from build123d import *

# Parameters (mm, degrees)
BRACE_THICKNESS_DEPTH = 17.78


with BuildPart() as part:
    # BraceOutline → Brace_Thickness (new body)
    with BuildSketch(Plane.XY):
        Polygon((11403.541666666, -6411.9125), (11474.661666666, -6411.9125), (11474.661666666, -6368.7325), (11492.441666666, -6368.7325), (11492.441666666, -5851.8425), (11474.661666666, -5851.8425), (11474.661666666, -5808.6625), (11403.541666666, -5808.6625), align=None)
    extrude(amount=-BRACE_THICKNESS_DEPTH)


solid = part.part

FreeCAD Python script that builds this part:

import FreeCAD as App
import Part
import Sketcher
from FreeCAD import Vector
Q = App.Units.Quantity


def add_polygon(sketch, points):
    """Adds a closed chain of lines whose ends are joined by coincident constraints."""
    first, n = sketch.GeometryCount, len(points)
    for a, b in zip(points, points[1:] + points[:1]):
        sketch.addGeometry(Part.LineSegment(App.Vector(*a, 0), App.Vector(*b, 0)), False)
    for i in range(n):
        sketch.addConstraint(Sketcher.Constraint("Coincident", first + i, 2, first + (i + 1) % n, 1))

doc = App.newDocument("Part")
params = doc.addObject("Spreadsheet::Sheet", "Params")
for row, (alias, value) in enumerate([
    ("sketch1_width", "2.8 in"),
    ("sketch1_width2", "0.7 in"),
    ("sketch1_height", "1.7 in"),
    ("sketch1_height2", "20.35 in"),
    ("pad1_length", "0.7 in"),
], start=1):
    params.set(f"A{row}", alias)
    params.set(f"B{row}", "=" + value)
    params.setAlias(f"B{row}", alias)

body = doc.addObject("PartDesign::Body", "Body")

# Sketch on XY plane
sketch1 = body.newObject("Sketcher::SketchObject", "Sketch")
sketch1.AttachmentSupport = (doc.getObject("XY_Plane"), [""])
sketch1.MapMode = "FlatFace"
add_polygon(sketch1, [(11404, -6412), (11475, -6412), (11475, -6369), (11492, -6369), (11492, -5852), (11475, -5852), (11475, -5809), (11404, -5809)])  # lines 0-7
sketch1.addConstraint([
    Sketcher.Constraint("Horizontal", 0),
    Sketcher.Constraint("Vertical", 1),
    Sketcher.Constraint("Horizontal", 2),
    Sketcher.Constraint("Vertical", 3),
    Sketcher.Constraint("Horizontal", 4),
    Sketcher.Constraint("Vertical", 5),
    Sketcher.Constraint("Horizontal", 6),
    Sketcher.Constraint("Vertical", 7),
    Sketcher.Constraint("Vertical", 1, 2, 4, 2),
    Sketcher.Constraint("Equal", 1, 5),
    Sketcher.Constraint("DistanceX", 0, 1, 0, 2, Q("2.8 in")),
    Sketcher.Constraint("DistanceX", 2, 1, 2, 2, Q("0.7 in")),
    Sketcher.Constraint("DistanceY", 1, 1, 1, 2, Q("1.7 in")),
    Sketcher.Constraint("DistanceY", 3, 1, 3, 2, Q("20.35 in")),
    Sketcher.Constraint("DistanceY", 0, 2, -1, 1, Q("252.4375 in")),
    Sketcher.Constraint("DistanceX", -1, 1, 0, 2, 11474.661667),
])
sketch1.setExpression("Constraints[18]", "Params.sketch1_width")
sketch1.setExpression("Constraints[19]", "Params.sketch1_width2")
sketch1.setExpression("Constraints[20]", "Params.sketch1_height")
sketch1.setExpression("Constraints[21]", "Params.sketch1_height2")
pad1 = body.newObject("PartDesign::Pad", "Pad")
pad1.Profile = sketch1
pad1.setExpression("Length", "Params.pad1_length")
pad1.Reversed = True

doc.recompute()
